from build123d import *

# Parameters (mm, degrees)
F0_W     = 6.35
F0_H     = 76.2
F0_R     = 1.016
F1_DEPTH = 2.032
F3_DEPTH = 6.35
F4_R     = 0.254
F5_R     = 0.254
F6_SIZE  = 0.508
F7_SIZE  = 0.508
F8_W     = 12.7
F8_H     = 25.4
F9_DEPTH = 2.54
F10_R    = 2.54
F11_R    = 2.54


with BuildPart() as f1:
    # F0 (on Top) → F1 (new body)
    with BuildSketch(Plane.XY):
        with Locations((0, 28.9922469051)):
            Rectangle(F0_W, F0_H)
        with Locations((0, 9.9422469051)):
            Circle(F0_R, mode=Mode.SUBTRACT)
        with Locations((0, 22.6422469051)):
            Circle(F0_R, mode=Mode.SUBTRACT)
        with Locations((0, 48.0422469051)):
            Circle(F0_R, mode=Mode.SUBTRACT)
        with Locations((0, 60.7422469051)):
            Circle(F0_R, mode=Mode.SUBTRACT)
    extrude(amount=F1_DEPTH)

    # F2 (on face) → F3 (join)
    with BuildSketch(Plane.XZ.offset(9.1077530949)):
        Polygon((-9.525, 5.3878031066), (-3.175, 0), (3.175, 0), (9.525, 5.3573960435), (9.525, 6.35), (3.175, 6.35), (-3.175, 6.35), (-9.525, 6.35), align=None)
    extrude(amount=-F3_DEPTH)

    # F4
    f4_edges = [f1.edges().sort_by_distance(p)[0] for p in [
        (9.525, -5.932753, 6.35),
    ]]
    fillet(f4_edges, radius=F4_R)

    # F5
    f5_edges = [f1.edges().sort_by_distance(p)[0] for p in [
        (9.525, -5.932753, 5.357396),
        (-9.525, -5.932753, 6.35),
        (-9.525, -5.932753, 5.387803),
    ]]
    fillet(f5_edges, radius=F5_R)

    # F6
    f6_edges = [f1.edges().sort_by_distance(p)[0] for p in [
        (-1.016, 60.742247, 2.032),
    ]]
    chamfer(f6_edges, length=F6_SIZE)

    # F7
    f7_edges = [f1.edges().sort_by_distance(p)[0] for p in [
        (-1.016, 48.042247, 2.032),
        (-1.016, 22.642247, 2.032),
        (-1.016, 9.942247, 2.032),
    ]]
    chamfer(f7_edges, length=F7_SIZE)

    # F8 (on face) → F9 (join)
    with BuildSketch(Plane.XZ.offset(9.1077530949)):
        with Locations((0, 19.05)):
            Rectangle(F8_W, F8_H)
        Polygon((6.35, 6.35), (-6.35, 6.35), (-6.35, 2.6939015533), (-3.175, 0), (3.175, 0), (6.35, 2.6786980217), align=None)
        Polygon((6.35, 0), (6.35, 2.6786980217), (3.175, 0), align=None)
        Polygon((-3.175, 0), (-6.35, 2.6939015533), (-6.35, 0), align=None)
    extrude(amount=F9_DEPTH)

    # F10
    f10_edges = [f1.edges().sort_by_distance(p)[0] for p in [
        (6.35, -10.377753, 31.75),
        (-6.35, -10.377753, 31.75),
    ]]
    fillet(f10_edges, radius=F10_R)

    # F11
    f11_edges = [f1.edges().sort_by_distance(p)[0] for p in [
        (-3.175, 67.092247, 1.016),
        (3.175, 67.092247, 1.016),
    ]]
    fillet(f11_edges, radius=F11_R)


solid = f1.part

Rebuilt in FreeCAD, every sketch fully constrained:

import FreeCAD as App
import Part
import Sketcher
Q = App.Units.Quantity


def edges_at(feature, points):
    """Names of the edges that pass closest to the given points."""
    edges = feature.Shape.Edges
    near = lambda p: min(range(len(edges)), key=lambda i: edges[i].distToShape(Part.Vertex(*p))[0])
    return sorted({f"Edge{near(p) + 1}" for p in points})


def add_polygon(sketch, points):
    """Adds a closed chain of lines whose ends are joined by coincident constraints."""
    first, n = sketch.GeometryCount, len(points)
    for a, b in zip(points, points[1:] + points[:1]):
        sketch.addGeometry(Part.LineSegment(App.Vector(*a, 0), App.Vector(*b, 0)), False)
    for i in range(n):
        sketch.addConstraint(Sketcher.Constraint("Coincident", first + i, 2, first + (i + 1) % n, 1))

doc = App.newDocument("Part")
params = doc.addObject("Spreadsheet::Sheet", "Params")
for row, (alias, value) in enumerate([
    ("sketch1_diameter", "0.08 in"),
    ("sketch1_height", "3 in"),
    ("sketch1_width", "0.25 in"),
    ("pad1_length", "0.08 in"),
    ("sketch2_width", "0.25 in"),
    ("sketch2_width2", "0.75 in"),
    ("pad2_length", "0.25 in"),
    ("fillet_radius", "0.01 in"),
    ("fillet2_radius", "0.01 in"),
    ("chamfer_size", "0.02 in"),
    ("chamfer2_size", "0.02 in"),
    ("sketch3_width", "0.5 in"),
    ("sketch3_height", "1.25 in"),
    ("pad3_length", "0.1 in"),
    ("fillet3_radius", "0.1 in"),
    ("fillet4_radius", "0.1 in"),
], start=1):
    params.set(f"A{row}", alias)
    params.set(f"B{row}", "=" + value)
    params.setAlias(f"B{row}", alias)

body = doc.addObject("PartDesign::Body", "Body")

sketch1 = body.newObject("Sketcher::SketchObject", "Sketch")
sketch1.AttachmentSupport = (doc.getObject("XY_Plane"), [""])
sketch1.MapMode = "FlatFace"
add_polygon(sketch1, [(-3.2, 67.1), (-3.2, -9.1), (3.2, -9.1), (3.2, 67.1)])
sketch1.addGeometry(Part.Circle(App.Vector(0, 9.9, 0), App.Vector(0, 0, 1), 1), False)
sketch1.addGeometry(Part.Circle(App.Vector(0, 22.6, 0), App.Vector(0, 0, 1), 1), False)
sketch1.addGeometry(Part.Circle(App.Vector(0, 48, 0), App.Vector(0, 0, 1), 1), False)
sketch1.addGeometry(Part.Circle(App.Vector(0, 60.7, 0), App.Vector(0, 0, 1), 1), False)
sketch1.addConstraint([
    Sketcher.Constraint("Vertical", 0),
    Sketcher.Constraint("Horizontal", 1),
    Sketcher.Constraint("Vertical", 2),
    Sketcher.Constraint("Horizontal", 3),
    Sketcher.Constraint("Equal", 4, 5),
    Sketcher.Constraint("Equal", 5, 6),
    Sketcher.Constraint("Equal", 6, 7),
    Sketcher.Constraint("PointOnObject", 4, 3, -2),
    Sketcher.Constraint("PointOnObject", 5, 3, -2),
    Sketcher.Constraint("PointOnObject", 6, 3, -2),
    Sketcher.Constraint("PointOnObject", 7, 3, -2),
    Sketcher.Constraint("Diameter", 4, Q("0.08 in")),
    Sketcher.Constraint("DistanceY", 0, 2, 0, 1, Q("3 in")),
    Sketcher.Constraint("DistanceY", 5, 3, 6, 3, Q("1 in")),
    Sketcher.Constraint("DistanceY", 4, 3, 7, 3, Q("2 in")),
    Sketcher.Constraint("DistanceX", 1, 1, 1, 2, Q("0.25 in")),
    Sketcher.Constraint("DistanceY", 4, 3, 5, 3, Q("0.5 in")),
    Sketcher.Constraint("DistanceY", 0, 2, 4, 3, Q("0.75 in")),
    Sketcher.Constraint("DistanceX", 0, 2, -1, 1, Q("0.125 in")),
    Sketcher.Constraint("DistanceY", -1, 1, 4, 3, 9.942247),
])
sketch1.setExpression("Constraints[15]", "Params.sketch1_diameter")
sketch1.setExpression("Constraints[16]", "Params.sketch1_height")
sketch1.setExpression("Constraints[19]", "Params.sketch1_width")
pad1 = body.newObject("PartDesign::Pad", "Pad")
pad1.Profile = sketch1
pad1.setExpression("Length", "Params.pad1_length")

sketch2 = body.newObject("Sketcher::SketchObject", "Sketch001")
sketch2.AttachmentSupport = (doc.getObject("XZ_Plane"), [""])
sketch2.MapMode = "FlatFace"
sketch2.AttachmentOffset = App.Placement(App.Vector(0, 0, 9.107753), App.Rotation())
add_polygon(sketch2, [(-9.5, 5.4), (-3.2, 0), (3.2, 0), (9.5, 5.4), (9.5, 6.3), (-9.5, 6.3)])
sketch2.addConstraint([
    Sketcher.Constraint("Horizontal", 1),
    Sketcher.Constraint("Vertical", 3),
    Sketcher.Constraint("Horizontal", 4),
    Sketcher.Constraint("Vertical", 5),
    Sketcher.Constraint("Symmetric", 0, 2, 1, 2, -1, 1),
    Sketcher.Constraint("DistanceX", 1, 1, 1, 2, Q("0.25 in")),
    Sketcher.Constraint("DistanceX", 4, 2, 4, 1, Q("0.75 in")),
    Sketcher.Constraint("DistanceX", 0, 2, 2, 2, Q("0.5 in")),
    Sketcher.Constraint("DistanceY", -1, 1, 3, 2, Q("0.25 in")),
    Sketcher.Constraint("Distance", 0, 8.32772),
    Sketcher.Constraint("Distance", 2, 8.30808),
])
sketch2.setExpression("Constraints[11]", "Params.sketch2_width")
sketch2.setExpression("Constraints[12]", "Params.sketch2_width2")
pad2 = body.newObject("PartDesign::Pad", "Pad001")
pad2.Profile = sketch2
pad2.setExpression("Length", "Params.pad2_length")
pad2.Reversed = True
doc.recompute()

fillet = body.newObject("PartDesign::Fillet", "Fillet")
fillet.Base = (pad2, edges_at(pad2, [(9.525, -5.933, 6.35)]))
fillet.setExpression("Radius", "Params.fillet_radius")
doc.recompute()

fillet2 = body.newObject("PartDesign::Fillet", "Fillet001")
fillet2.Base = (fillet, edges_at(fillet, [(9.525, -5.933, 5.357), (-9.525, -5.933, 6.35), (-9.525, -5.933, 5.388)]))
fillet2.setExpression("Radius", "Params.fillet2_radius")
doc.recompute()

chamfer = body.newObject("PartDesign::Chamfer", "Chamfer")
chamfer.Base = (fillet2, edges_at(fillet2, [(-1.016, 60.742, 2.032)]))
chamfer.setExpression("Size", "Params.chamfer_size")
doc.recompute()

chamfer2 = body.newObject("PartDesign::Chamfer", "Chamfer001")
chamfer2.Base = (chamfer, edges_at(chamfer, [(-1.016, 48.042, 2.032), (-1.016, 22.642, 2.032), (-1.016, 9.942, 2.032)]))
chamfer2.setExpression("Size", "Params.chamfer2_size")

sketch3 = body.newObject("Sketcher::SketchObject", "Sketch002")
sketch3.AttachmentSupport = (doc.getObject("XZ_Plane"), [""])
sketch3.MapMode = "FlatFace"
sketch3.AttachmentOffset = App.Placement(App.Vector(0, 0, 9.107753), App.Rotation())
add_polygon(sketch3, [(-6, 32), (-6, 0), (6, 0), (6, 32)])
sketch3.addConstraint([
    Sketcher.Constraint("Vertical", 0),
    Sketcher.Constraint("Horizontal", 1),
    Sketcher.Constraint("Vertical", 2),
    Sketcher.Constraint("Horizontal", 3),
    Sketcher.Constraint("Symmetric", 0, 2, 1, 2, -1, 1),
    Sketcher.Constraint("DistanceX", 1, 1, 1, 2, Q("0.5 in")),
    Sketcher.Constraint("DistanceY", 0, 2, 0, 1, Q("1.25 in")),
])
sketch3.setExpression("Constraints[9]", "Params.sketch3_width")
sketch3.setExpression("Constraints[10]", "Params.sketch3_height")
pad3 = body.newObject("PartDesign::Pad", "Pad002")
pad3.Profile = sketch3
pad3.setExpression("Length", "Params.pad3_length")
doc.recompute()

fillet3 = body.newObject("PartDesign::Fillet", "Fillet002")
fillet3.Base = (pad3, edges_at(pad3, [(6.35, -10.378, 31.75), (-6.35, -10.378, 31.75)]))
fillet3.setExpression("Radius", "Params.fillet3_radius")
doc.recompute()

fillet4 = body.newObject("PartDesign::Fillet", "Fillet003")
fillet4.Base = (fillet3, edges_at(fillet3, [(-3.175, 67.092, 1.016), (3.175, 67.092, 1.016)]))
fillet4.setExpression("Radius", "Params.fillet4_radius")

doc.recompute()
